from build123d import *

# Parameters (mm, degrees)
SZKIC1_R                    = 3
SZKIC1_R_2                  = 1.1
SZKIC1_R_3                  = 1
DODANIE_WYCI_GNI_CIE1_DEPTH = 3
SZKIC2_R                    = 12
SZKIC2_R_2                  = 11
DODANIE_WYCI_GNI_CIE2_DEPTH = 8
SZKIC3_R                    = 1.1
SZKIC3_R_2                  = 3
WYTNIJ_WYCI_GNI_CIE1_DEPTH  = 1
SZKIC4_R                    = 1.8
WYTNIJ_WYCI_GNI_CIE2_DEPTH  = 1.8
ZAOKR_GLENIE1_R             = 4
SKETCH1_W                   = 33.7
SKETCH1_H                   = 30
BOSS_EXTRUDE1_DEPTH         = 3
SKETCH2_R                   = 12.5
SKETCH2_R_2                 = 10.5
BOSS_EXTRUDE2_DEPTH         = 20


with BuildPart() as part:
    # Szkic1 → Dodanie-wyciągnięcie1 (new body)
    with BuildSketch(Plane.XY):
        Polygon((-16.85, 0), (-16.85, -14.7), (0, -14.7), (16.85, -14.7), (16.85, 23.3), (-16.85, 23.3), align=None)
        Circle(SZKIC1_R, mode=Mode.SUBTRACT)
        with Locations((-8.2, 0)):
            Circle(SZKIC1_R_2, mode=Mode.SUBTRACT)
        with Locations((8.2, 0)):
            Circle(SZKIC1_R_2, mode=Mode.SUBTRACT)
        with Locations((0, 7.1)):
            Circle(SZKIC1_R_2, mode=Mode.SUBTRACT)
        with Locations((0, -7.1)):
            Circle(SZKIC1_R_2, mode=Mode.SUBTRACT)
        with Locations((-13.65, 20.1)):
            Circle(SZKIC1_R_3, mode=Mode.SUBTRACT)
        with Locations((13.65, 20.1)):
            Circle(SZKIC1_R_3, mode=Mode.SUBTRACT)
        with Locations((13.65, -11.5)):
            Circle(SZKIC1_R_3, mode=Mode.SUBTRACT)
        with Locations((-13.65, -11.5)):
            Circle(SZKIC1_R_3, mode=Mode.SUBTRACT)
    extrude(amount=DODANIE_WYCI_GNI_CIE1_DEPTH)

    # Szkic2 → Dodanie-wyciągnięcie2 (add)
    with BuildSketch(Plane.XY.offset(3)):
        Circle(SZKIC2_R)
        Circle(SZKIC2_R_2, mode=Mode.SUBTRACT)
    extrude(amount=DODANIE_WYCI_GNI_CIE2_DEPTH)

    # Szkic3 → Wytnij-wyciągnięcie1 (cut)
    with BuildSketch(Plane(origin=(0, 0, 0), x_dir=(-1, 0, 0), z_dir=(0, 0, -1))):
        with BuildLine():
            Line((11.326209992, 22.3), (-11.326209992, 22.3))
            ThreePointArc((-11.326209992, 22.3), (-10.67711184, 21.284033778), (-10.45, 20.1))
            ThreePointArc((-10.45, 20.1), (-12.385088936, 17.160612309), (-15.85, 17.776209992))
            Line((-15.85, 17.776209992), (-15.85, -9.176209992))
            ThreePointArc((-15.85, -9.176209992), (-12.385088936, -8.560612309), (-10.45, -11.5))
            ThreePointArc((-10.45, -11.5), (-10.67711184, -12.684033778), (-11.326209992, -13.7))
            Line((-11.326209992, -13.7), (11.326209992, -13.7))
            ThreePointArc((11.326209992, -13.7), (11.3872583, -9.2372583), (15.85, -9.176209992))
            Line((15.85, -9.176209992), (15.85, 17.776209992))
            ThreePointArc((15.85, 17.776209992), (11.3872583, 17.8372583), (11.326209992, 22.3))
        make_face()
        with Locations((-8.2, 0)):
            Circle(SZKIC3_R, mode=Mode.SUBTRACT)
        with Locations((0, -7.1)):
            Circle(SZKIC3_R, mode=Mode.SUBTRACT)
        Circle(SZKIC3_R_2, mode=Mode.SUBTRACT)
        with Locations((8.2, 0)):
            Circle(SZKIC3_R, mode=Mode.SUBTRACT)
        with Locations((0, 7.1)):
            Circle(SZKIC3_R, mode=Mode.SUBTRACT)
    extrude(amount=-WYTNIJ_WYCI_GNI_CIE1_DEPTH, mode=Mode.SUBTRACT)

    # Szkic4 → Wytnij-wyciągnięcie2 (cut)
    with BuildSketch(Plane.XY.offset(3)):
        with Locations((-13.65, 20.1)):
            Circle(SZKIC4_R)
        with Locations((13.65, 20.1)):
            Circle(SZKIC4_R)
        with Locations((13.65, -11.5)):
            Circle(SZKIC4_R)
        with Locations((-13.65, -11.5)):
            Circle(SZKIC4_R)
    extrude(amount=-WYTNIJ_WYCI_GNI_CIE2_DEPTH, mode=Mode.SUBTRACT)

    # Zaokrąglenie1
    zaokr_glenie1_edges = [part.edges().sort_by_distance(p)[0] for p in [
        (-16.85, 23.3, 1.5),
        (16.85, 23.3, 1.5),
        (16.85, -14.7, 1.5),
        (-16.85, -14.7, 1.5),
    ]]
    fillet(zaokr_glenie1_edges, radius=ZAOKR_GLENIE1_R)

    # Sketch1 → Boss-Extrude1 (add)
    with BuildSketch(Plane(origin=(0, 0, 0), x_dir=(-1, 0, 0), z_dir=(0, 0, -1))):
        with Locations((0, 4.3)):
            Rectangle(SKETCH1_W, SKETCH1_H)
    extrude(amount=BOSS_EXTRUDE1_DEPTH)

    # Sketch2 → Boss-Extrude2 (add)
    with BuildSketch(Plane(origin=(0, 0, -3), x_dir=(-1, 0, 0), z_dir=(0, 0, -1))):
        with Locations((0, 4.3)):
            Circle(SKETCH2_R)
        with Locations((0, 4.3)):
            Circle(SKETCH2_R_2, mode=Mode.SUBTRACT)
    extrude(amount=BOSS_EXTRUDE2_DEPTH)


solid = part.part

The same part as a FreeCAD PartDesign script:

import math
import FreeCAD as App
import Part
import Sketcher


def edges_at(feature, points):
    """Names of the edges that pass closest to the given points."""
    edges = feature.Shape.Edges
    near = lambda p: min(range(len(edges)), key=lambda i: edges[i].distToShape(Part.Vertex(*p))[0])
    return sorted({f"Edge{near(p) + 1}" for p in points})

doc = App.newDocument("Part")
body = doc.addObject("PartDesign::Body", "Body")

# Sketch on XY plane
sketch1 = doc.addObject("Sketcher::SketchObject", "Sketch")
body.addObject(sketch1)
sketch1.AttachmentSupport = (doc.XY_Plane, [""])
sketch1.MapMode = "FlatFace"
sketch1.addGeometry([
    Part.LineSegment(App.Vector(-16.9, -14.7, 0), App.Vector(16.9, -14.7, 0)),  # 0
    Part.LineSegment(App.Vector(16.9, -14.7, 0), App.Vector(16.9, 23.3, 0)),  # 1
    Part.LineSegment(App.Vector(16.9, 23.3, 0), App.Vector(-16.9, 23.3, 0)),  # 2
    Part.LineSegment(App.Vector(-16.9, 23.3, 0), App.Vector(-16.9, -14.7, 0)),  # 3
    Part.Circle(App.Vector(-13.7, -11.5, 0), App.Vector(0, 0, 1), 1),  # 4
    Part.Circle(App.Vector(-8.2, 0, 0), App.Vector(0, 0, 1), 1.1),  # 5
    Part.Circle(App.Vector(0, -7.1, 0), App.Vector(0, 0, 1), 1.1),  # 6
    Part.Circle(App.Vector(13.7, -11.5, 0), App.Vector(0, 0, 1), 1),  # 7
    Part.Circle(App.Vector(0, 0, 0), App.Vector(0, 0, 1), 3),  # 8
    Part.Circle(App.Vector(8.2, 0, 0), App.Vector(0, 0, 1), 1.1),  # 9
    Part.Circle(App.Vector(-13.7, 20.1, 0), App.Vector(0, 0, 1), 1),  # 10
    Part.Circle(App.Vector(0, 7.1, 0), App.Vector(0, 0, 1), 1.1),  # 11
    Part.Circle(App.Vector(13.7, 20.1, 0), App.Vector(0, 0, 1), 1),  # 12
], False)
sketch1.addConstraint([
    Sketcher.Constraint("Coincident", 0, 2, 1, 1),
    Sketcher.Constraint("Coincident", 1, 2, 2, 1),
    Sketcher.Constraint("Coincident", 2, 2, 3, 1),
    Sketcher.Constraint("Coincident", 3, 2, 0, 1),
    Sketcher.Constraint("Horizontal", 0),
    Sketcher.Constraint("Vertical", 1),
    Sketcher.Constraint("Horizontal", 2),
    Sketcher.Constraint("Vertical", 3),
    Sketcher.Constraint("Coincident", 8, 3, -1, 1),
    Sketcher.Constraint("Equal", 5, 6),
    Sketcher.Constraint("Equal", 4, 7),
    Sketcher.Constraint("Equal", 6, 9),
    Sketcher.Constraint("Equal", 7, 10),
    Sketcher.Constraint("Equal", 9, 11),
    Sketcher.Constraint("Equal", 10, 12),
    Sketcher.Constraint("Symmetric", 5, 3, 9, 3, -1, 1),
    Sketcher.Constraint("Symmetric", 6, 3, 11, 3, -1, 1),
    Sketcher.Constraint("Symmetric", 4, 3, 7, 3, -2),
    Sketcher.Constraint("Symmetric", 10, 3, 12, 3, -2),
    Sketcher.Constraint("PointOnObject", 5, 3, -1),
    Sketcher.Constraint("PointOnObject", 6, 3, -2),
    Sketcher.Constraint("Vertical", 4, 3, 10, 3),
    Sketcher.Constraint("Diameter", 4, 2.0),
    Sketcher.Constraint("Diameter", 8, 6.0),
    Sketcher.Constraint("Diameter", 5, 2.2),
    Sketcher.Constraint("DistanceY", 1, 1, 1, 2, 38.0),
    Sketcher.Constraint("DistanceX", 0, 1, 0, 2, 33.7),
    Sketcher.Constraint("DistanceY", 11, 3, 10, 3, 13.0),
    Sketcher.Constraint("DistanceY", 4, 3, -1, 1, 11.5),
    Sketcher.Constraint("DistanceX", 5, 3, -1, 1, 8.2),
    Sketcher.Constraint("DistanceY", 6, 3, -1, 1, 7.1),
    Sketcher.Constraint("DistanceY", 0, 2, -1, 1, 14.7),
    Sketcher.Constraint("DistanceX", 4, 3, 7, 3, 27.3),
    Sketcher.Constraint("DistanceX", 7, 3, 0, 2, 3.2),
])
pad1 = doc.addObject("PartDesign::Pad", "Pad")
body.addObject(pad1)
pad1.Profile = sketch1
pad1.Length = 3

# Sketch on XY plane
sketch2 = doc.addObject("Sketcher::SketchObject", "Sketch001")
body.addObject(sketch2)
sketch2.AttachmentSupport = (doc.XY_Plane, [""])
sketch2.MapMode = "FlatFace"
sketch2.AttachmentOffset = App.Placement(App.Vector(0, 0, 3), App.Rotation())
sketch2.addGeometry([
    Part.Circle(App.Vector(0, 0, 0), App.Vector(0, 0, 1), 12),
    Part.Circle(App.Vector(0, 0, 0), App.Vector(0, 0, 1), 11),
], False)
sketch2.addConstraint([
    Sketcher.Constraint("Coincident", 0, 3, -1, 1),
    Sketcher.Constraint("Coincident", 1, 3, -1, 1),
    Sketcher.Constraint("Diameter", 0, 24.0),
    Sketcher.Constraint("Diameter", 1, 22.0),
])
pad2 = doc.addObject("PartDesign::Pad", "Pad001")
body.addObject(pad2)
pad2.Profile = sketch2
pad2.Length = 8

# Sketch on XY plane
sketch3 = doc.addObject("Sketcher::SketchObject", "Sketch002")
body.addObject(sketch3)
sketch3.AttachmentSupport = (doc.XY_Plane, [""])
sketch3.MapMode = "FlatFace"
sketch3.addGeometry([
    Part.LineSegment(App.Vector(-11.3, 22.3, 0), App.Vector(11.3, 22.3, 0)),  # 0
    Part.ArcOfCircle(Part.Circle(App.Vector(13.7, 20.1, 0), App.Vector(0, 0, 1), 3.2), math.radians(137), math.radians(180)),  # 1
    Part.ArcOfCircle(Part.Circle(App.Vector(13.7, 20.1, 0), App.Vector(0, 0, 1), 3.2), math.radians(-180), math.radians(-47)),  # 2
    Part.LineSegment(App.Vector(15.8, 17.8, 0), App.Vector(15.8, -9.2, 0)),  # 3
    Part.ArcOfCircle(Part.Circle(App.Vector(13.7, -11.5, 0), App.Vector(0, 0, 1), 3.2), math.radians(47), math.radians(180)),  # 4
    Part.ArcOfCircle(Part.Circle(App.Vector(13.7, -11.5, 0), App.Vector(0, 0, 1), 3.2), math.radians(-180), math.radians(-137)),  # 5
    Part.LineSegment(App.Vector(11.3, -13.7, 0), App.Vector(-11.3, -13.7, 0)),  # 6
    Part.ArcOfCircle(Part.Circle(App.Vector(-13.7, -11.5, 0), App.Vector(0, 0, 1), 3.2), math.radians(-43), math.radians(133)),  # 7
    Part.LineSegment(App.Vector(-15.8, -9.2, 0), App.Vector(-15.8, 17.8, 0)),  # 8
    Part.ArcOfCircle(Part.Circle(App.Vector(-13.7, 20.1, 0), App.Vector(0, 0, 1), 3.2), math.radians(-133), math.radians(43)),  # 9
    Part.Circle(App.Vector(0, -7.1, 0), App.Vector(0, 0, 1), 1.1),  # 10
    Part.Circle(App.Vector(8.2, 0, 0), App.Vector(0, 0, 1), 1.1),  # 11
    Part.Circle(App.Vector(0, 0, 0), App.Vector(0, 0, 1), 3),  # 12
    Part.Circle(App.Vector(-8.2, 0, 0), App.Vector(0, 0, 1), 1.1),  # 13
    Part.Circle(App.Vector(0, 7.1, 0), App.Vector(0, 0, 1), 1.1),  # 14
], False)
sketch3.addConstraint([
    Sketcher.Constraint("Coincident", 0, 2, 1, 1),
    Sketcher.Constraint("Tangent", 1, 2, 2, 1),
    Sketcher.Constraint("Coincident", 2, 2, 3, 1),
    Sketcher.Constraint("Coincident", 3, 2, 4, 1),
    Sketcher.Constraint("Tangent", 4, 2, 5, 1),
    Sketcher.Constraint("Coincident", 5, 2, 6, 1),
    Sketcher.Constraint("Coincident", 6, 2, 7, 1),
    Sketcher.Constraint("Coincident", 7, 2, 8, 1),
    Sketcher.Constraint("Coincident", 8, 2, 9, 1),
    Sketcher.Constraint("Coincident", 9, 2, 0, 1),
    Sketcher.Constraint("Horizontal", 0),
    Sketcher.Constraint("Vertical", 3),
    Sketcher.Constraint("Horizontal", 6),
    Sketcher.Constraint("Vertical", 8),
    Sketcher.Constraint("Coincident", 12, 3, -1, 1),
    Sketcher.Constraint("Equal", 1, 2),
    Sketcher.Constraint("Equal", 2, 4),
    Sketcher.Constraint("Equal", 4, 5),
    Sketcher.Constraint("Equal", 5, 7),
    Sketcher.Constraint("Equal", 7, 9),
    Sketcher.Constraint("Equal", 10, 11),
    Sketcher.Constraint("Equal", 11, 13),
    Sketcher.Constraint("Equal", 13, 14),
    Sketcher.Constraint("Symmetric", 11, 3, 13, 3, -1, 1),
    Sketcher.Constraint("Symmetric", 10, 3, 14, 3, -1, 1),
    Sketcher.Constraint("Symmetric", 4, 3, 7, 3, -2),
    Sketcher.Constraint("Symmetric", 1, 3, 9, 3, -2),
    Sketcher.Constraint("PointOnObject", 10, 3, -2),
    Sketcher.Constraint("PointOnObject", 11, 3, -1),
    Sketcher.Constraint("Horizontal", 9, 3, 1, 2),
    Sketcher.Constraint("Horizontal", 7, 3, 4, 2),
    Sketcher.Constraint("Horizontal", 3, 2, 7, 2),
    Sketcher.Constraint("Vertical", 2, 3, 4, 3),
    Sketcher.Constraint("Vertical", 0, 2, 5, 2),
    Sketcher.Constraint("Diameter", 12, 6.0),
    Sketcher.Constraint("Diameter", 10, 2.2),
    Sketcher.Constraint("Radius", 1, 3.2),
    Sketcher.Constraint("DistanceY", 14, 3, 9, 3, 13.0),
    Sketcher.Constraint("DistanceY", -1, 1, 1, 3, 20.1),
    Sketcher.Constraint("DistanceY", 4, 3, -1, 1, 11.5),
    Sketcher.Constraint("DistanceX", -1, 1, 11, 3, 8.2),
    Sketcher.Constraint("DistanceY", -1, 1, 0, 2, 22.3),
    Sketcher.Constraint("DistanceX", 7, 3, 4, 3, 27.3),
    Sketcher.Constraint("DistanceX", 1, 3, 2, 2, 2.2),
])
pocket1 = doc.addObject("PartDesign::Pocket", "Pocket")
body.addObject(pocket1)
pocket1.Profile = sketch3
pocket1.Length = 1
pocket1.Reversed = True

# Sketch on XY plane
sketch4 = doc.addObject("Sketcher::SketchObject", "Sketch003")
body.addObject(sketch4)
sketch4.AttachmentSupport = (doc.XY_Plane, [""])
sketch4.MapMode = "FlatFace"
sketch4.AttachmentOffset = App.Placement(App.Vector(0, 0, 3), App.Rotation())
sketch4.addGeometry([
    Part.Circle(App.Vector(-13.7, 20.1, 0), App.Vector(0, 0, 1), 1.8),
    Part.Circle(App.Vector(13.7, 20.1, 0), App.Vector(0, 0, 1), 1.8),
    Part.Circle(App.Vector(13.7, -11.5, 0), App.Vector(0, 0, 1), 1.8),
    Part.Circle(App.Vector(-13.7, -11.5, 0), App.Vector(0, 0, 1), 1.8),
], False)
sketch4.addConstraint([
    Sketcher.Constraint("Equal", 0, 1),
    Sketcher.Constraint("Equal", 1, 2),
    Sketcher.Constraint("Equal", 2, 3),
    Sketcher.Constraint("Symmetric", 0, 3, 1, 3, -2),
    Sketcher.Constraint("Symmetric", 2, 3, 3, 3, -2),
    Sketcher.Constraint("Vertical", 1, 3, 2, 3),
    Sketcher.Constraint("Diameter", 0, 3.6),
    Sketcher.Constraint("DistanceY", -1, 1, 0, 3, 20.1),
    Sketcher.Constraint("DistanceY", 2, 3, -1, 1, 11.5),
    Sketcher.Constraint("DistanceX", 0, 3, 1, 3, 27.3),
])
pocket2 = doc.addObject("PartDesign::Pocket", "Pocket001")
body.addObject(pocket2)
pocket2.Profile = sketch4
pocket2.Length = 1.8
doc.recompute()

fillet = doc.addObject("PartDesign::Fillet", "Fillet")
body.addObject(fillet)
fillet.Base = (pocket2, edges_at(pocket2, [
    (-16.85, 23.3, 1.5),
    (16.85, 23.3, 1.5),
    (16.85, -14.7, 1.5),
    (-16.85, -14.7, 1.5),
]))
fillet.Radius = 4

# Sketch on XY plane
sketch5 = doc.addObject("Sketcher::SketchObject", "Sketch004")
body.addObject(sketch5)
sketch5.AttachmentSupport = (doc.XY_Plane, [""])
sketch5.MapMode = "FlatFace"
sketch5.addGeometry([
    Part.LineSegment(App.Vector(17, 19, 0), App.Vector(17, -11, 0)),
    Part.LineSegment(App.Vector(17, -11, 0), App.Vector(-17, -11, 0)),
    Part.LineSegment(App.Vector(-17, -11, 0), App.Vector(-17, 19, 0)),
    Part.LineSegment(App.Vector(-17, 19, 0), App.Vector(17, 19, 0)),
], False)
sketch5.addConstraint([
    Sketcher.Constraint("Coincident", 0, 2, 1, 1),
    Sketcher.Constraint("Coincident", 1, 2, 2, 1),
    Sketcher.Constraint("Coincident", 2, 2, 3, 1),
    Sketcher.Constraint("Coincident", 3, 2, 0, 1),
    Sketcher.Constraint("Vertical", 0),
    Sketcher.Constraint("Horizontal", 1),
    Sketcher.Constraint("Vertical", 2),
    Sketcher.Constraint("Horizontal", 3),
    Sketcher.Constraint("DistanceY", 0, 2, 0, 1, 30.0),
    Sketcher.Constraint("DistanceX", 1, 2, 1, 1, 33.7),
    Sketcher.Constraint("DistanceY", 0, 2, -1, 1, 10.7),
    Sketcher.Constraint("DistanceX", -1, 1, 0, 2, 16.85),
])
pad3 = doc.addObject("PartDesign::Pad", "Pad002")
body.addObject(pad3)
pad3.Profile = sketch5
pad3.Length = 3
pad3.Reversed = True

# Sketch on XY plane
sketch6 = doc.addObject("Sketcher::SketchObject", "Sketch005")
body.addObject(sketch6)
sketch6.AttachmentSupport = (doc.XY_Plane, [""])
sketch6.MapMode = "FlatFace"
sketch6.AttachmentOffset = App.Placement(App.Vector(0, 0, -3), App.Rotation())
sketch6.addGeometry([
    Part.Circle(App.Vector(0, 4, 0), App.Vector(0, 0, 1), 12),
    Part.Circle(App.Vector(0, 4, 0), App.Vector(0, 0, 1), 10),
], False)
sketch6.addConstraint([
    Sketcher.Constraint("Coincident", 1, 3, 0, 3),
    Sketcher.Constraint("PointOnObject", 0, 3, -2),
    Sketcher.Constraint("Diameter", 0, 25.0),
    Sketcher.Constraint("Diameter", 1, 21.0),
    Sketcher.Constraint("DistanceY", -1, 1, 0, 3, 4.3),
])
pad4 = doc.addObject("PartDesign::Pad", "Pad003")
body.addObject(pad4)
pad4.Profile = sketch6
pad4.Length = 20
pad4.Reversed = True

doc.recompute()
